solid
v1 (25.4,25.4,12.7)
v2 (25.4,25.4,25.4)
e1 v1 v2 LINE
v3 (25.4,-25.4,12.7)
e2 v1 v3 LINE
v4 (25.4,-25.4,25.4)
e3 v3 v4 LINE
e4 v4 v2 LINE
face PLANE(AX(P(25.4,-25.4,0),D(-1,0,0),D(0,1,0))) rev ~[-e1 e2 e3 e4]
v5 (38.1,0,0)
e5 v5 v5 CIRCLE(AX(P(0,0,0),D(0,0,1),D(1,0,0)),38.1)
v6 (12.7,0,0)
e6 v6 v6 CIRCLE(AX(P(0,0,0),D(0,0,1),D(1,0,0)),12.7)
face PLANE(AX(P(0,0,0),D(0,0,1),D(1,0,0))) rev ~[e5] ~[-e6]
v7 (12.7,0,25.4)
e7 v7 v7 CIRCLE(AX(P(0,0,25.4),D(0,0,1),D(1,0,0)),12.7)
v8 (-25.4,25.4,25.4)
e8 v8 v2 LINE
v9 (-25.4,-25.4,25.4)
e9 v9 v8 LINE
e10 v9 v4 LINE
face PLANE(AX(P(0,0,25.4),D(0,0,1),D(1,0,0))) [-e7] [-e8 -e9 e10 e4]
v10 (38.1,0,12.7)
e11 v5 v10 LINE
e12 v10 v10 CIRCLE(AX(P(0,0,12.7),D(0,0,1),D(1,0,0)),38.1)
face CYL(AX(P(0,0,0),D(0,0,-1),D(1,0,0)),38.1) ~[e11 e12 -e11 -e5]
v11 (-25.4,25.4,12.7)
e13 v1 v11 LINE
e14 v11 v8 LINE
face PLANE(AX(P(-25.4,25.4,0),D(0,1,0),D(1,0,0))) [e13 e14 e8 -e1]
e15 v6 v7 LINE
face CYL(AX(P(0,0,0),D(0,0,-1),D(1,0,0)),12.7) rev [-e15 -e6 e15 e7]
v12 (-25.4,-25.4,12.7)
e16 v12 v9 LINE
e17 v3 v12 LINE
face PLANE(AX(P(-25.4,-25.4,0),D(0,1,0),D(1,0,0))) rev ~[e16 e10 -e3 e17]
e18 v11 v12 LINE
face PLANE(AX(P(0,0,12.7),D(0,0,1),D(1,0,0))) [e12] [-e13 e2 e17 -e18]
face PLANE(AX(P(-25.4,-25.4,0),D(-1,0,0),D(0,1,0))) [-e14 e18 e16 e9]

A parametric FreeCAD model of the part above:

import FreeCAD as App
import Part
import Sketcher
from FreeCAD import Vector
Q = App.Units.Quantity


def add_polygon(sketch, points):
    """Adds a closed chain of lines whose ends are joined by coincident constraints."""
    first, n = sketch.GeometryCount, len(points)
    for a, b in zip(points, points[1:] + points[:1]):
        sketch.addGeometry(Part.LineSegment(App.Vector(*a, 0), App.Vector(*b, 0)), False)
    for i in range(n):
        sketch.addConstraint(Sketcher.Constraint("Coincident", first + i, 2, first + (i + 1) % n, 1))

doc = App.newDocument("Part")
body = doc.addObject("PartDesign::Body", "Body")

sketch1 = body.newObject("Sketcher::SketchObject", "Sketch")
sketch1.AttachmentSupport = (doc.getObject("XY_Plane"), [""])
sketch1.MapMode = "FlatFace"
sketch1.addGeometry(Part.Circle(Vector(0, 0, 0), Vector(0, 0, 1), 38.1), False)
sketch1.addConstraint([
    Sketcher.Constraint("Coincident", 0, 3, -1, 1),
    Sketcher.Constraint("Diameter", 0, Q("3 in")),
])
pad1 = body.newObject("PartDesign::Pad", "Pad")
pad1.Profile = sketch1
pad1.Length = Q("0.5 in")

sketch2 = body.newObject("Sketcher::SketchObject", "Sketch001")
sketch2.AttachmentSupport = (doc.getObject("XY_Plane"), [""])
sketch2.MapMode = "FlatFace"
add_polygon(sketch2, [(-25.4, 25.4), (-25.4, -25.4), (25.4, -25.4), (25.4, 25.4)])
sketch2.addConstraint([
    Sketcher.Constraint("Vertical", 0),
    Sketcher.Constraint("Horizontal", 1),
    Sketcher.Constraint("Vertical", 2),
    Sketcher.Constraint("Horizontal", 3),
    Sketcher.Constraint("Symmetric", 0, 2, 2, 2, -1, 1),
    Sketcher.Constraint("Equal", 3, 0),
    Sketcher.Constraint("DistanceX", 1, 1, 1, 2, Q("2 in")),
])
pad2 = body.newObject("PartDesign::Pad", "Pad001")
pad2.Profile = sketch2
pad2.Length = Q("1 in")

sketch3 = body.newObject("Sketcher::SketchObject", "Sketch002")
sketch3.AttachmentSupport = (doc.getObject("XY_Plane"), [""])
sketch3.MapMode = "FlatFace"
sketch3.addGeometry(Part.Circle(Vector(0, 0, 0), Vector(0, 0, 1), 12.7), False)
sketch3.addConstraint([
    Sketcher.Constraint("Coincident", 0, 3, -1, 1),
    Sketcher.Constraint("Diameter", 0, Q("1 in")),
])
pocket1 = body.newObject("PartDesign::Pocket", "Pocket")
pocket1.Profile = sketch3
pocket1.Length = Q("1 in")
pocket1.Reversed = True

doc.recompute()
